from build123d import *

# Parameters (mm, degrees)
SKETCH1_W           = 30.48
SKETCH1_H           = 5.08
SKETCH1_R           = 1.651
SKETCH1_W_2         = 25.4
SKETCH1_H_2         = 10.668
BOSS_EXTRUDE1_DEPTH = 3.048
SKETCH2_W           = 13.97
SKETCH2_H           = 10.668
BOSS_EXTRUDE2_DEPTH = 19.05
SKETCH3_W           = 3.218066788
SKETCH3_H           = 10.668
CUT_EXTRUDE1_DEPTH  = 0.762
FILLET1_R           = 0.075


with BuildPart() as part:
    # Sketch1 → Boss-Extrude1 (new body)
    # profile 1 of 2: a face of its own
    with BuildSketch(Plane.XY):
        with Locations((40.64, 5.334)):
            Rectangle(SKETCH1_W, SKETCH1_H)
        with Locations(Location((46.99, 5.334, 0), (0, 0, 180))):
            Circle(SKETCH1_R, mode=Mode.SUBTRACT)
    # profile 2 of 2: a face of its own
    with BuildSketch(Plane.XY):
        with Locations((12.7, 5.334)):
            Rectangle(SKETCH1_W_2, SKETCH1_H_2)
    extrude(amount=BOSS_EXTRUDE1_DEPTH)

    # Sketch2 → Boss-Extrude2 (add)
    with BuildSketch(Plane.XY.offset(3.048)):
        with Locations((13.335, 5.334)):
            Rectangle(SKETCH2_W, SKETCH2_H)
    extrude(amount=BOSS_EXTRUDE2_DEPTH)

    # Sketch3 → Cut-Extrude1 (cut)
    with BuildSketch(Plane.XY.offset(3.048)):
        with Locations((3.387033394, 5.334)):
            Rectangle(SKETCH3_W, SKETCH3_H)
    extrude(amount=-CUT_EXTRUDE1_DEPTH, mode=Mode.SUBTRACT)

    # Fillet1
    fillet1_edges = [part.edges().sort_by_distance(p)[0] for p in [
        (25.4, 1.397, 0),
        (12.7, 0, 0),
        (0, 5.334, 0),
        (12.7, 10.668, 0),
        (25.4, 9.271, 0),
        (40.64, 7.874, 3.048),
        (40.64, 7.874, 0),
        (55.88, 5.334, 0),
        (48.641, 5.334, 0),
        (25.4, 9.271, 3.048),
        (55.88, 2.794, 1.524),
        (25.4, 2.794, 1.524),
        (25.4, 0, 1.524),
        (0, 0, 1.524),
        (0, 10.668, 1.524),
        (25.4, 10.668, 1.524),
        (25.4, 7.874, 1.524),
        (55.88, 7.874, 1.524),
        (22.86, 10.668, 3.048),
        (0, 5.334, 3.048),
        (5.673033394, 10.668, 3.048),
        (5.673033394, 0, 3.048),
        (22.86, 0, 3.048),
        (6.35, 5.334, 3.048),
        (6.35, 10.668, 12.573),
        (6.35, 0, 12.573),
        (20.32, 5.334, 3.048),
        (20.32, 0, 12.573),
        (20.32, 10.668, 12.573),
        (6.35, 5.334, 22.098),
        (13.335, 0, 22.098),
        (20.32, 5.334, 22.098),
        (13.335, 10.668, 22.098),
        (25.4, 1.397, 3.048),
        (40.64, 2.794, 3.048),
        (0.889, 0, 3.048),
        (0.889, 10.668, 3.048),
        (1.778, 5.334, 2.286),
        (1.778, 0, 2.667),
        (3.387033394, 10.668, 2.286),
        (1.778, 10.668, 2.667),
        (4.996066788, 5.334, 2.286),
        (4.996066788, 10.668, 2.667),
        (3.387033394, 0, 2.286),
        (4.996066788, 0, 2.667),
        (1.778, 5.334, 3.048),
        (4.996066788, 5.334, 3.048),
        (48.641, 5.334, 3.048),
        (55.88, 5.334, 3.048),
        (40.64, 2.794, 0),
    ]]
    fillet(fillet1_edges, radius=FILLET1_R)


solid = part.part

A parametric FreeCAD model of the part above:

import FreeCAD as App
import Part
import Sketcher
Q = App.Units.Quantity

doc = App.newDocument("Part")
body = doc.addObject("PartDesign::Body", "Body")

# Sketch on XY plane
sketch1 = body.newObject("Sketcher::SketchObject", "Sketch")
sketch1.AttachmentSupport = (doc.getObject("XY_Plane"), [""])
sketch1.MapMode = "FlatFace"
sketch1.addGeometry(Part.LineSegment(App.Vector(25.4, 2.8, 0), App.Vector(55.9, 2.8, 0)), False)
sketch1.addGeometry(Part.LineSegment(App.Vector(55.9, 2.8, 0), App.Vector(55.9, 7.9, 0)), False)
sketch1.addGeometry(Part.LineSegment(App.Vector(55.9, 7.9, 0), App.Vector(25.4, 7.9, 0)), False)
sketch1.addGeometry(Part.LineSegment(App.Vector(25.4, 7.9, 0), App.Vector(25.4, 10.7, 0)), False)
sketch1.addGeometry(Part.LineSegment(App.Vector(25.4, 10.7, 0), App.Vector(0, 10.7, 0)), False)
sketch1.addGeometry(Part.LineSegment(App.Vector(0, 10.7, 0), App.Vector(0, 0, 0)), False)
sketch1.addGeometry(Part.LineSegment(App.Vector(0, 0, 0), App.Vector(25.4, 0, 0)), False)
sketch1.addGeometry(Part.LineSegment(App.Vector(25.4, 0, 0), App.Vector(25.4, 2.8, 0)), False)
sketch1.addGeometry(Part.Circle(App.Vector(47, 5.3, 0), App.Vector(0, 0, 1), 1.7), False)
sketch1.addConstraint(Sketcher.Constraint("Coincident", 0, 2, 1, 1))
sketch1.addConstraint(Sketcher.Constraint("Coincident", 1, 2, 2, 1))
sketch1.addConstraint(Sketcher.Constraint("Coincident", 2, 2, 3, 1))
sketch1.addConstraint(Sketcher.Constraint("Coincident", 3, 2, 4, 1))
sketch1.addConstraint(Sketcher.Constraint("Coincident", 4, 2, 5, 1))
sketch1.addConstraint(Sketcher.Constraint("Coincident", 5, 2, 6, 1))
sketch1.addConstraint(Sketcher.Constraint("Coincident", 6, 2, 7, 1))
sketch1.addConstraint(Sketcher.Constraint("Coincident", 7, 2, 0, 1))
sketch1.addConstraint(Sketcher.Constraint("Horizontal", 0))
sketch1.addConstraint(Sketcher.Constraint("Vertical", 1))
sketch1.addConstraint(Sketcher.Constraint("Horizontal", 2))
sketch1.addConstraint(Sketcher.Constraint("Vertical", 3))
sketch1.addConstraint(Sketcher.Constraint("Horizontal", 4))
sketch1.addConstraint(Sketcher.Constraint("Vertical", 5))
sketch1.addConstraint(Sketcher.Constraint("Horizontal", 6))
sketch1.addConstraint(Sketcher.Constraint("Vertical", 7))
sketch1.addConstraint(Sketcher.Constraint("Coincident", 5, 2, -1, 1))
sketch1.addConstraint(Sketcher.Constraint("Vertical", 3, 2, 6, 2))
sketch1.addConstraint(Sketcher.Constraint("Equal", 3, 7))
sketch1.addConstraint(Sketcher.Constraint("Diameter", 8, Q("0.13 in")))
sketch1.addConstraint(Sketcher.Constraint("DistanceX", 4, 2, 4, 1, Q("1 in")))
sketch1.addConstraint(Sketcher.Constraint("DistanceX", 0, 1, 0, 2, Q("1.2 in")))
sketch1.addConstraint(Sketcher.Constraint("DistanceY", 1, 1, 1, 2, Q("0.2 in")))
sketch1.addConstraint(Sketcher.Constraint("DistanceY", 3, 1, 3, 2, Q("0.11 in")))
sketch1.addConstraint(Sketcher.Constraint("DistanceY", 0, 2, 8, 3, Q("0.1 in")))
sketch1.addConstraint(Sketcher.Constraint("DistanceX", -1, 1, 8, 3, Q("1.85 in")))
pad1 = body.newObject("PartDesign::Pad", "Pad")
pad1.Profile = sketch1
pad1.Length = Q("0.12 in")

# Sketch on XY plane
sketch2 = body.newObject("Sketcher::SketchObject", "Sketch001")
sketch2.AttachmentSupport = (doc.getObject("XY_Plane"), [""])
sketch2.MapMode = "FlatFace"
sketch2.AttachmentOffset = App.Placement(App.Vector(0, 0, 0.12 * 25.4), App.Rotation())
sketch2.addGeometry(Part.LineSegment(App.Vector(6, 11, 0), App.Vector(6, 0, 0)), False)
sketch2.addGeometry(Part.LineSegment(App.Vector(6, 0, 0), App.Vector(20, 0, 0)), False)
sketch2.addGeometry(Part.LineSegment(App.Vector(20, 0, 0), App.Vector(20, 11, 0)), False)
sketch2.addGeometry(Part.LineSegment(App.Vector(20, 11, 0), App.Vector(6, 11, 0)), False)
sketch2.addConstraint(Sketcher.Constraint("Coincident", 0, 2, 1, 1))
sketch2.addConstraint(Sketcher.Constraint("Coincident", 1, 2, 2, 1))
sketch2.addConstraint(Sketcher.Constraint("Coincident", 2, 2, 3, 1))
sketch2.addConstraint(Sketcher.Constraint("Coincident", 3, 2, 0, 1))
sketch2.addConstraint(Sketcher.Constraint("Vertical", 0))
sketch2.addConstraint(Sketcher.Constraint("Horizontal", 1))
sketch2.addConstraint(Sketcher.Constraint("Vertical", 2))
sketch2.addConstraint(Sketcher.Constraint("Horizontal", 3))
sketch2.addConstraint(Sketcher.Constraint("PointOnObject", 0, 2, -1))
sketch2.addConstraint(Sketcher.Constraint("DistanceX", 1, 1, 1, 2, Q("0.55 in")))
sketch2.addConstraint(Sketcher.Constraint("DistanceY", 0, 2, 0, 1, Q("0.42 in")))
sketch2.addConstraint(Sketcher.Constraint("DistanceX", -1, 1, 1, 2, Q("0.8 in")))
pad2 = body.newObject("PartDesign::Pad", "Pad001")
pad2.Profile = sketch2
pad2.Length = Q("0.75 in")

# Sketch on XY plane
sketch3 = body.newObject("Sketcher::SketchObject", "Sketch002")
sketch3.AttachmentSupport = (doc.getObject("XY_Plane"), [""])
sketch3.MapMode = "FlatFace"
sketch3.AttachmentOffset = App.Placement(App.Vector(0, 0, 0.12 * 25.4), App.Rotation())
sketch3.addGeometry(Part.LineSegment(App.Vector(1.8, 10.7, 0), App.Vector(1.8, 0, 0)), False)
sketch3.addGeometry(Part.LineSegment(App.Vector(1.8, 0, 0), App.Vector(5, 0, 0)), False)
sketch3.addGeometry(Part.LineSegment(App.Vector(5, 0, 0), App.Vector(5, 10.7, 0)), False)
sketch3.addGeometry(Part.LineSegment(App.Vector(5, 10.7, 0), App.Vector(1.8, 10.7, 0)), False)
sketch3.addConstraint(Sketcher.Constraint("Coincident", 0, 2, 1, 1))
sketch3.addConstraint(Sketcher.Constraint("Coincident", 1, 2, 2, 1))
sketch3.addConstraint(Sketcher.Constraint("Coincident", 2, 2, 3, 1))
sketch3.addConstraint(Sketcher.Constraint("Coincident", 3, 2, 0, 1))
sketch3.addConstraint(Sketcher.Constraint("Vertical", 0))
sketch3.addConstraint(Sketcher.Constraint("Horizontal", 1))
sketch3.addConstraint(Sketcher.Constraint("Vertical", 2))
sketch3.addConstraint(Sketcher.Constraint("Horizontal", 3))
sketch3.addConstraint(Sketcher.Constraint("PointOnObject", 0, 2, -1))
sketch3.addConstraint(Sketcher.Constraint("DistanceY", 0, 2, 0, 1, Q("0.42 in")))
sketch3.addConstraint(Sketcher.Constraint("DistanceX", -1, 1, 0, 2, Q("0.07 in")))
sketch3.addConstraint(Sketcher.Constraint("DistanceX", 1, 1, 1, 2, Q("3.218067 mm")))
pocket1 = body.newObject("PartDesign::Pocket", "Pocket")
pocket1.Profile = sketch3
pocket1.Length = Q("0.03 in")
doc.recompute()

fillet = body.newObject("PartDesign::Fillet", "Fillet")
fillet.Base = (pocket1, ["Edge1"])
fillet.UseAllEdges = True
fillet.Radius = 0.075

doc.recompute()
